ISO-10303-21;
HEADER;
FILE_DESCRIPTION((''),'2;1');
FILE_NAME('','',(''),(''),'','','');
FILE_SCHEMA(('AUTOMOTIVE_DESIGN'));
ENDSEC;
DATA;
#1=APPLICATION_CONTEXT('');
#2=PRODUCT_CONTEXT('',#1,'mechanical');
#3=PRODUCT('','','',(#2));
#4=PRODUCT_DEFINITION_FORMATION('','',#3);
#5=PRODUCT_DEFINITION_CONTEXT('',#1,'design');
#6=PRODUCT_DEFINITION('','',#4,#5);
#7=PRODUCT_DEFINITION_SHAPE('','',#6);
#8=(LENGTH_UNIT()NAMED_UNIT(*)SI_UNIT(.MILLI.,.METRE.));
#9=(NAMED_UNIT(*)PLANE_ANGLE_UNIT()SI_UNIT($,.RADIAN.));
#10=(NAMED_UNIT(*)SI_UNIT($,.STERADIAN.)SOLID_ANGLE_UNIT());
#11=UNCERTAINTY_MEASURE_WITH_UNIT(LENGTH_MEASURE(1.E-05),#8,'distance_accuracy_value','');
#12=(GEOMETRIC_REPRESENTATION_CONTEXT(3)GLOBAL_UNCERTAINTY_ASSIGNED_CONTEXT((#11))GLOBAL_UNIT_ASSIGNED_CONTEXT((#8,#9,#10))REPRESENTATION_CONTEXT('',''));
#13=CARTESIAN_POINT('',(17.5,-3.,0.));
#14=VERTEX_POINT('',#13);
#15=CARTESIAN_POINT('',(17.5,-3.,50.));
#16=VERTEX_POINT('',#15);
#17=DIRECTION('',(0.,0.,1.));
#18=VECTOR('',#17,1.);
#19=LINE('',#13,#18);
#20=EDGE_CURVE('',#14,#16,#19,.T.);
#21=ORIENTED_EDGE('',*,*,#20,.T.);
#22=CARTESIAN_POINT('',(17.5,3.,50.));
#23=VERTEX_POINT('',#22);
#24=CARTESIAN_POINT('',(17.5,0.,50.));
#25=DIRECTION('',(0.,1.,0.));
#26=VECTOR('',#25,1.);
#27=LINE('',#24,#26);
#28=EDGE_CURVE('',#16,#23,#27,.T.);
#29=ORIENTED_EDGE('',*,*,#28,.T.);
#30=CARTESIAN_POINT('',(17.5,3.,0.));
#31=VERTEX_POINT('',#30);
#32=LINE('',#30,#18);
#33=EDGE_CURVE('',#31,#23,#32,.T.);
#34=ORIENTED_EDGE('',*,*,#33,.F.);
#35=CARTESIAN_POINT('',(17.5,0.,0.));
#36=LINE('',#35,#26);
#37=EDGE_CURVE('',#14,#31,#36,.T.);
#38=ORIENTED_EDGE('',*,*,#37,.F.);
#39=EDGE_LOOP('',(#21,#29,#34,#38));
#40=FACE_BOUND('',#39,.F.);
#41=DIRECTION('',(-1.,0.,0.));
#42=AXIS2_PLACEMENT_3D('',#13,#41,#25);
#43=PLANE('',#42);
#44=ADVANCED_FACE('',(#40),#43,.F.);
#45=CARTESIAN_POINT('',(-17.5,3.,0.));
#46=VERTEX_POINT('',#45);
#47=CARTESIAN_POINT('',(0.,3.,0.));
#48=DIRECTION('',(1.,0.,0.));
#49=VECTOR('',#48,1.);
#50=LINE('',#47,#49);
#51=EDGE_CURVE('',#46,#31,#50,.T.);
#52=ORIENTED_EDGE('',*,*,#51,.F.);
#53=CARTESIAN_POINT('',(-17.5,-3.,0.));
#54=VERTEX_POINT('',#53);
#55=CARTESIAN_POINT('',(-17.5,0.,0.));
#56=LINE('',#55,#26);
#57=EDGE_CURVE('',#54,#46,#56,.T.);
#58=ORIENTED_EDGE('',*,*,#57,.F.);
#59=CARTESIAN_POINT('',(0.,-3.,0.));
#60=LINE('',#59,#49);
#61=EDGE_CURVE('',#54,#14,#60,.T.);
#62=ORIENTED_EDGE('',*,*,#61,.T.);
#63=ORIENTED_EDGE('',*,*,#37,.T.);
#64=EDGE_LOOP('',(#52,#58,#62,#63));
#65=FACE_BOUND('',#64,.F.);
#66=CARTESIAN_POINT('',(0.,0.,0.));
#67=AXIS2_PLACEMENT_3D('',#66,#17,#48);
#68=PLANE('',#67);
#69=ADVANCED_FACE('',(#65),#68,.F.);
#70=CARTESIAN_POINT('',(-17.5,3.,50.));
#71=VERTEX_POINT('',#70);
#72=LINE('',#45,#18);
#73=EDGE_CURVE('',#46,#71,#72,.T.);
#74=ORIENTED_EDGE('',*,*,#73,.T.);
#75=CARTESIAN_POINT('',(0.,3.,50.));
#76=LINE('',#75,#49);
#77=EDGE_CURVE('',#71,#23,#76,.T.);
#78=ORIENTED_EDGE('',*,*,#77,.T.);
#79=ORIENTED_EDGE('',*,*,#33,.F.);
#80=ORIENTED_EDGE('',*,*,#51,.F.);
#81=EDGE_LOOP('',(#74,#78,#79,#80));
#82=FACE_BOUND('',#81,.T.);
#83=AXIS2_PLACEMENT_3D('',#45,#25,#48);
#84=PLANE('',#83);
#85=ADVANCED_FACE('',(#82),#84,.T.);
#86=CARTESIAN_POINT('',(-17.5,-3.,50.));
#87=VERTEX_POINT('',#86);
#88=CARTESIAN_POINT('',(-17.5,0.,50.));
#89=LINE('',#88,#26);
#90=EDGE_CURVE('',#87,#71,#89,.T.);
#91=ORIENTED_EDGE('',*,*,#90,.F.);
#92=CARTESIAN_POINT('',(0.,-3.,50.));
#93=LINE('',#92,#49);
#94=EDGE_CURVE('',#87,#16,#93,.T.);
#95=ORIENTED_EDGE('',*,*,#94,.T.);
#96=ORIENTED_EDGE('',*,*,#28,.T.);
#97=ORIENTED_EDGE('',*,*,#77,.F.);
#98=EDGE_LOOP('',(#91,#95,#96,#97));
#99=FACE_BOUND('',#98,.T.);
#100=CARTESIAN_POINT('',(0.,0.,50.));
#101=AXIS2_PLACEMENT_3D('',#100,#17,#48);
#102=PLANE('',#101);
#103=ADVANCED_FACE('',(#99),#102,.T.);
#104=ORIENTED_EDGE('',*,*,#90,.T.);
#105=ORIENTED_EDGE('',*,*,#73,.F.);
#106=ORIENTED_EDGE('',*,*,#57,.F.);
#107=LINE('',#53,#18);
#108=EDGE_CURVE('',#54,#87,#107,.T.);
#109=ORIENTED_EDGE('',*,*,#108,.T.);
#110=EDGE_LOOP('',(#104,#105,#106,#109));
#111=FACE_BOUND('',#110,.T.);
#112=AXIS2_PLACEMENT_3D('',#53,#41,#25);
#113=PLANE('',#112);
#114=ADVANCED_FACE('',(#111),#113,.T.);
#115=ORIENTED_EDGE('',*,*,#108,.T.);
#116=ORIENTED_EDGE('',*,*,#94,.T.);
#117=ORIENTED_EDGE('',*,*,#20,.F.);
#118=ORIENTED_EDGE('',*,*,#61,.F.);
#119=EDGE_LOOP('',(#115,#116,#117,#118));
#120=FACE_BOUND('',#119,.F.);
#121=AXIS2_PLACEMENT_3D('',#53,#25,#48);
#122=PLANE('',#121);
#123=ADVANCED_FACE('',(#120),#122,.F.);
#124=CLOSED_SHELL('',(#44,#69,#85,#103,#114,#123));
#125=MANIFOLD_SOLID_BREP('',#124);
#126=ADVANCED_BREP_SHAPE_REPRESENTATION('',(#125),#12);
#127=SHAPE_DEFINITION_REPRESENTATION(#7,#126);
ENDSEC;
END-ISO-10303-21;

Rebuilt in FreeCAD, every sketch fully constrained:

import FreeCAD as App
import Part
import Sketcher

doc = App.newDocument("Part")
body = doc.addObject("PartDesign::Body", "Body")

sketch1 = body.newObject("Sketcher::SketchObject", "Sketch")
sketch1.AttachmentSupport = (doc.getObject("XY_Plane"), [""])
sketch1.MapMode = "FlatFace"
sketch1.addGeometry([
    Part.LineSegment(App.Vector(-17.5, 3, 0), App.Vector(-17.5, -3, 0)),
    Part.LineSegment(App.Vector(-17.5, -3, 0), App.Vector(17.5, -3, 0)),
    Part.LineSegment(App.Vector(17.5, -3, 0), App.Vector(17.5, 3, 0)),
    Part.LineSegment(App.Vector(17.5, 3, 0), App.Vector(-17.5, 3, 0)),
], False)
sketch1.addConstraint([
    Sketcher.Constraint("Coincident", 0, 2, 1, 1),
    Sketcher.Constraint("Coincident", 1, 2, 2, 1),
    Sketcher.Constraint("Coincident", 2, 2, 3, 1),
    Sketcher.Constraint("Coincident", 3, 2, 0, 1),
    Sketcher.Constraint("Vertical", 0),
    Sketcher.Constraint("Horizontal", 1),
    Sketcher.Constraint("Vertical", 2),
    Sketcher.Constraint("Horizontal", 3),
    Sketcher.Constraint("Symmetric", 0, 2, 2, 2, -1, 1),
    Sketcher.Constraint("DistanceX", 1, 1, 1, 2, 35.0),
    Sketcher.Constraint("DistanceY", 0, 2, 0, 1, 6.0),
])
pad1 = body.newObject("PartDesign::Pad", "Pad")
pad1.Profile = sketch1
pad1.Length = 50

doc.recompute()
